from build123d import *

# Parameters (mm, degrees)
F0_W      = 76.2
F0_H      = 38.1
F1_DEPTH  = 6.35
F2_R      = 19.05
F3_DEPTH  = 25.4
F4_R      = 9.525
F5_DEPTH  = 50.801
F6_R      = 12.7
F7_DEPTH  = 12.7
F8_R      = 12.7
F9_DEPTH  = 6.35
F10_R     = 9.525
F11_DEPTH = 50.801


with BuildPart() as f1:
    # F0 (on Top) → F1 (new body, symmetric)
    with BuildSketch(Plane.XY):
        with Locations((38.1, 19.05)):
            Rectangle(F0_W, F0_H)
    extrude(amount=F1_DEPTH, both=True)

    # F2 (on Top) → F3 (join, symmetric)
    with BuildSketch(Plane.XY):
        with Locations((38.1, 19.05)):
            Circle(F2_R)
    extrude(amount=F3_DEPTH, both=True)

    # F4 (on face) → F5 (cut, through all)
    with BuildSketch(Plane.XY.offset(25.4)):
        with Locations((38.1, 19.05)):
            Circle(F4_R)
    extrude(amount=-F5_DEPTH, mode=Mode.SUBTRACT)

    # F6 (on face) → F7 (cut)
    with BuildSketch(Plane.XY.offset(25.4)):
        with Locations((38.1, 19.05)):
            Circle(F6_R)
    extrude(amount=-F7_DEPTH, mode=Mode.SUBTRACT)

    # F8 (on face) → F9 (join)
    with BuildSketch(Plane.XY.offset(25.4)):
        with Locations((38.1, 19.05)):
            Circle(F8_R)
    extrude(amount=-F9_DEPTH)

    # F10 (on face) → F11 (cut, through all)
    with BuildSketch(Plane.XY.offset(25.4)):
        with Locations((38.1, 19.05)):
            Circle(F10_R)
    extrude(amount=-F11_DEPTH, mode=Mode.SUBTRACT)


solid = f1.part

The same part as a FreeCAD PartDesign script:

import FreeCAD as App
import Part
import Sketcher

V = App.Vector
Q = App.Units.Quantity


def add_polygon(sketch, points):
    """Adds a closed chain of lines whose ends are joined by coincident constraints."""
    first, n = sketch.GeometryCount, len(points)
    for a, b in zip(points, points[1:] + points[:1]):
        sketch.addGeometry(Part.LineSegment(App.Vector(*a, 0), App.Vector(*b, 0)), False)
    for i in range(n):
        sketch.addConstraint(Sketcher.Constraint("Coincident", first + i, 2, first + (i + 1) % n, 1))

doc = App.newDocument("Part")
body = doc.addObject("PartDesign::Body", "Body")

sketch1 = body.newObject("Sketcher::SketchObject", "Sketch")
sketch1.AttachmentSupport = (doc.getObject("XY_Plane"), [""])
sketch1.MapMode = "FlatFace"
add_polygon(sketch1, [(0, 38), (0, 0), (76, 0), (76, 38)])
sketch1.addConstraint([
    Sketcher.Constraint("Vertical", 0),
    Sketcher.Constraint("Horizontal", 1),
    Sketcher.Constraint("Vertical", 2),
    Sketcher.Constraint("Horizontal", 3),
    Sketcher.Constraint("Coincident", 0, 2, -1, 1),
    Sketcher.Constraint("DistanceX", 1, 1, 1, 2, Q("3 in")),
    Sketcher.Constraint("DistanceY", 0, 2, 0, 1, Q("1.5 in")),
])
pad1 = body.newObject("PartDesign::Pad", "Pad")
pad1.Profile = sketch1
pad1.Length = Q("0.5 in")
pad1.Midplane = True

sketch2 = body.newObject("Sketcher::SketchObject", "Sketch001")
sketch2.AttachmentSupport = (doc.getObject("XY_Plane"), [""])
sketch2.MapMode = "FlatFace"
sketch2.addGeometry(Part.Circle(V(38, 19, 0), V(0, 0, 1), 19), False)
sketch2.addConstraint([
    Sketcher.Constraint("Diameter", 0, Q("1.5 in")),
    Sketcher.Constraint("DistanceX", -1, 1, 0, 3, Q("1.5 in")),
    Sketcher.Constraint("DistanceY", -1, 1, 0, 3, Q("0.75 in")),
])
pad2 = body.newObject("PartDesign::Pad", "Pad001")
pad2.Profile = sketch2
pad2.Length = Q("2 in")
pad2.Midplane = True

sketch3 = body.newObject("Sketcher::SketchObject", "Sketch002")
sketch3.AttachmentSupport = (doc.getObject("XY_Plane"), [""])
sketch3.MapMode = "FlatFace"
sketch3.AttachmentOffset = App.Placement(V(0, 0, 1 * 25.4), App.Rotation())
sketch3.addGeometry(Part.Circle(V(38, 19, 0), V(0, 0, 1), 10), False)
sketch3.addConstraint([
    Sketcher.Constraint("Diameter", 0, Q("0.75 in")),
    Sketcher.Constraint("DistanceX", -1, 1, 0, 3, Q("1.5 in")),
    Sketcher.Constraint("DistanceY", -1, 1, 0, 3, Q("0.75 in")),
])
pocket1 = body.newObject("PartDesign::Pocket", "Pocket")
pocket1.Profile = sketch3
pocket1.Type = "ThroughAll"

sketch4 = body.newObject("Sketcher::SketchObject", "Sketch003")
sketch4.AttachmentSupport = (doc.getObject("XY_Plane"), [""])
sketch4.MapMode = "FlatFace"
sketch4.AttachmentOffset = App.Placement(V(0, 0, 1 * 25.4), App.Rotation())
sketch4.addGeometry(Part.Circle(V(38, 19, 0), V(0, 0, 1), 13), False)
sketch4.addConstraint([
    Sketcher.Constraint("Diameter", 0, Q("1 in")),
    Sketcher.Constraint("DistanceX", -1, 1, 0, 3, Q("1.5 in")),
    Sketcher.Constraint("DistanceY", -1, 1, 0, 3, Q("0.75 in")),
])
pocket2 = body.newObject("PartDesign::Pocket", "Pocket001")
pocket2.Profile = sketch4
pocket2.Length = Q("0.5 in")

sketch5 = body.newObject("Sketcher::SketchObject", "Sketch004")
sketch5.AttachmentSupport = (doc.getObject("XY_Plane"), [""])
sketch5.MapMode = "FlatFace"
sketch5.AttachmentOffset = App.Placement(V(0, 0, 1 * 25.4), App.Rotation())
sketch5.addGeometry(Part.Circle(V(38, 19, 0), V(0, 0, 1), 13), False)
sketch5.addConstraint([
    Sketcher.Constraint("Diameter", 0, Q("1 in")),
    Sketcher.Constraint("DistanceX", -1, 1, 0, 3, Q("1.5 in")),
    Sketcher.Constraint("DistanceY", -1, 1, 0, 3, Q("0.75 in")),
])
pad3 = body.newObject("PartDesign::Pad", "Pad002")
pad3.Profile = sketch5
pad3.Length = Q("0.25 in")
pad3.Reversed = True

sketch6 = body.newObject("Sketcher::SketchObject", "Sketch005")
sketch6.AttachmentSupport = (doc.getObject("XY_Plane"), [""])
sketch6.MapMode = "FlatFace"
sketch6.AttachmentOffset = App.Placement(V(0, 0, 1 * 25.4), App.Rotation())
sketch6.addGeometry(Part.Circle(V(38, 19, 0), V(0, 0, 1), 10), False)
sketch6.addConstraint([
    Sketcher.Constraint("Diameter", 0, Q("0.75 in")),
    Sketcher.Constraint("DistanceX", -1, 1, 0, 3, Q("1.5 in")),
    Sketcher.Constraint("DistanceY", -1, 1, 0, 3, Q("0.75 in")),
])
pocket3 = body.newObject("PartDesign::Pocket", "Pocket002")
pocket3.Profile = sketch6
pocket3.Type = "ThroughAll"

doc.recompute()
